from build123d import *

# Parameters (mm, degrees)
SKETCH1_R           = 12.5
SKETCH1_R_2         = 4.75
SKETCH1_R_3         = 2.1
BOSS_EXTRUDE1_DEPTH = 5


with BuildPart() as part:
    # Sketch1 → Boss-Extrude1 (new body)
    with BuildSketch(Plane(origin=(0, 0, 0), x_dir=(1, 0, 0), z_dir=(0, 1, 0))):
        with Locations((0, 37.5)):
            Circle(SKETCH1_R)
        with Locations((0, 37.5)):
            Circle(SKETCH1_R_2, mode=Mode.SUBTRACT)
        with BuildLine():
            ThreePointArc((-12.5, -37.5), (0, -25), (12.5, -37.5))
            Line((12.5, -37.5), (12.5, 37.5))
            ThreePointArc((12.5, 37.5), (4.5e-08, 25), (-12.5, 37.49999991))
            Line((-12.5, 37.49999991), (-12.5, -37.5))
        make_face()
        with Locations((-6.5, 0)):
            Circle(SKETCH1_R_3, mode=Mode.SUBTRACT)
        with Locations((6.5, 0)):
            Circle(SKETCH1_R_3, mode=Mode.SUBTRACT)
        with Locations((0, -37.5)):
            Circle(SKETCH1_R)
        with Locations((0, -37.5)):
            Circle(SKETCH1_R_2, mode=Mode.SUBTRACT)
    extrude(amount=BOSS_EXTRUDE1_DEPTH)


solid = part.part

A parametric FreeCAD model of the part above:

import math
import FreeCAD as App
import Part
import Sketcher
Q = App.Units.Quantity

doc = App.newDocument("Part")
body = doc.addObject("PartDesign::Body", "Body")

# Sketch on XZ plane
sketch1 = body.newObject("Sketcher::SketchObject", "Sketch")
sketch1.AttachmentSupport = (doc.getObject("XZ_Plane"), [""])
sketch1.MapMode = "FlatFace"
sketch1.addGeometry([
    Part.ArcOfCircle(Part.Circle(App.Vector(0, -37.5, 0), App.Vector(0, 0, 1), 12.5), math.radians(180), math.radians(360)),  # 0
    Part.LineSegment(App.Vector(-12.5, -37.5, 0), App.Vector(-12.5, 37.5, 0)),  # 1
    Part.ArcOfCircle(Part.Circle(App.Vector(0, 37.5, 0), App.Vector(0, 0, 1), 12.5), math.radians(0), math.radians(180)),  # 2
    Part.LineSegment(App.Vector(12.5, 37.5, 0), App.Vector(12.5, -37.5, 0)),  # 3
    Part.Circle(App.Vector(0, 37.5, 0), App.Vector(0, 0, 1), 4.75),  # 4
    Part.Circle(App.Vector(-6.5, 0, 0), App.Vector(0, 0, 1), 2.1),  # 5
    Part.Circle(App.Vector(6.5, 0, 0), App.Vector(0, 0, 1), 2.1),  # 6
    Part.Circle(App.Vector(0, -37.5, 0), App.Vector(0, 0, 1), 4.75),  # 7
], False)
sketch1.addConstraint([
    Sketcher.Constraint("Tangent", 0, 1, 1, 1),
    Sketcher.Constraint("Tangent", 1, 2, 2, 2),
    Sketcher.Constraint("Tangent", 2, 1, 3, 1),
    Sketcher.Constraint("Tangent", 3, 2, 0, 2),
    Sketcher.Constraint("Vertical", 1),
    Sketcher.Constraint("Vertical", 3),
    Sketcher.Constraint("Coincident", 4, 3, 2, 3),
    Sketcher.Constraint("Coincident", 7, 3, 0, 3),
    Sketcher.Constraint("Equal", 5, 6),
    Sketcher.Constraint("Equal", 4, 7),
    Sketcher.Constraint("Symmetric", 0, 3, 2, 3, -1, 1),
    Sketcher.Constraint("Symmetric", 5, 3, 6, 3, -1, 1),
    Sketcher.Constraint("PointOnObject", 5, 3, -1),
    Sketcher.Constraint("Diameter", 4, Q("9.5 mm")),
    Sketcher.Constraint("Diameter", 5, Q("4.2 mm")),
    Sketcher.Constraint("Radius", 0, Q("12.5 mm")),
    Sketcher.Constraint("DistanceY", 1, 1, 1, 2, Q("75 mm")),
    Sketcher.Constraint("DistanceX", 5, 3, 6, 3, Q("13 mm")),
])
pad1 = body.newObject("PartDesign::Pad", "Pad")
pad1.Profile = sketch1
pad1.Length = 5
pad1.Reversed = True

doc.recompute()
